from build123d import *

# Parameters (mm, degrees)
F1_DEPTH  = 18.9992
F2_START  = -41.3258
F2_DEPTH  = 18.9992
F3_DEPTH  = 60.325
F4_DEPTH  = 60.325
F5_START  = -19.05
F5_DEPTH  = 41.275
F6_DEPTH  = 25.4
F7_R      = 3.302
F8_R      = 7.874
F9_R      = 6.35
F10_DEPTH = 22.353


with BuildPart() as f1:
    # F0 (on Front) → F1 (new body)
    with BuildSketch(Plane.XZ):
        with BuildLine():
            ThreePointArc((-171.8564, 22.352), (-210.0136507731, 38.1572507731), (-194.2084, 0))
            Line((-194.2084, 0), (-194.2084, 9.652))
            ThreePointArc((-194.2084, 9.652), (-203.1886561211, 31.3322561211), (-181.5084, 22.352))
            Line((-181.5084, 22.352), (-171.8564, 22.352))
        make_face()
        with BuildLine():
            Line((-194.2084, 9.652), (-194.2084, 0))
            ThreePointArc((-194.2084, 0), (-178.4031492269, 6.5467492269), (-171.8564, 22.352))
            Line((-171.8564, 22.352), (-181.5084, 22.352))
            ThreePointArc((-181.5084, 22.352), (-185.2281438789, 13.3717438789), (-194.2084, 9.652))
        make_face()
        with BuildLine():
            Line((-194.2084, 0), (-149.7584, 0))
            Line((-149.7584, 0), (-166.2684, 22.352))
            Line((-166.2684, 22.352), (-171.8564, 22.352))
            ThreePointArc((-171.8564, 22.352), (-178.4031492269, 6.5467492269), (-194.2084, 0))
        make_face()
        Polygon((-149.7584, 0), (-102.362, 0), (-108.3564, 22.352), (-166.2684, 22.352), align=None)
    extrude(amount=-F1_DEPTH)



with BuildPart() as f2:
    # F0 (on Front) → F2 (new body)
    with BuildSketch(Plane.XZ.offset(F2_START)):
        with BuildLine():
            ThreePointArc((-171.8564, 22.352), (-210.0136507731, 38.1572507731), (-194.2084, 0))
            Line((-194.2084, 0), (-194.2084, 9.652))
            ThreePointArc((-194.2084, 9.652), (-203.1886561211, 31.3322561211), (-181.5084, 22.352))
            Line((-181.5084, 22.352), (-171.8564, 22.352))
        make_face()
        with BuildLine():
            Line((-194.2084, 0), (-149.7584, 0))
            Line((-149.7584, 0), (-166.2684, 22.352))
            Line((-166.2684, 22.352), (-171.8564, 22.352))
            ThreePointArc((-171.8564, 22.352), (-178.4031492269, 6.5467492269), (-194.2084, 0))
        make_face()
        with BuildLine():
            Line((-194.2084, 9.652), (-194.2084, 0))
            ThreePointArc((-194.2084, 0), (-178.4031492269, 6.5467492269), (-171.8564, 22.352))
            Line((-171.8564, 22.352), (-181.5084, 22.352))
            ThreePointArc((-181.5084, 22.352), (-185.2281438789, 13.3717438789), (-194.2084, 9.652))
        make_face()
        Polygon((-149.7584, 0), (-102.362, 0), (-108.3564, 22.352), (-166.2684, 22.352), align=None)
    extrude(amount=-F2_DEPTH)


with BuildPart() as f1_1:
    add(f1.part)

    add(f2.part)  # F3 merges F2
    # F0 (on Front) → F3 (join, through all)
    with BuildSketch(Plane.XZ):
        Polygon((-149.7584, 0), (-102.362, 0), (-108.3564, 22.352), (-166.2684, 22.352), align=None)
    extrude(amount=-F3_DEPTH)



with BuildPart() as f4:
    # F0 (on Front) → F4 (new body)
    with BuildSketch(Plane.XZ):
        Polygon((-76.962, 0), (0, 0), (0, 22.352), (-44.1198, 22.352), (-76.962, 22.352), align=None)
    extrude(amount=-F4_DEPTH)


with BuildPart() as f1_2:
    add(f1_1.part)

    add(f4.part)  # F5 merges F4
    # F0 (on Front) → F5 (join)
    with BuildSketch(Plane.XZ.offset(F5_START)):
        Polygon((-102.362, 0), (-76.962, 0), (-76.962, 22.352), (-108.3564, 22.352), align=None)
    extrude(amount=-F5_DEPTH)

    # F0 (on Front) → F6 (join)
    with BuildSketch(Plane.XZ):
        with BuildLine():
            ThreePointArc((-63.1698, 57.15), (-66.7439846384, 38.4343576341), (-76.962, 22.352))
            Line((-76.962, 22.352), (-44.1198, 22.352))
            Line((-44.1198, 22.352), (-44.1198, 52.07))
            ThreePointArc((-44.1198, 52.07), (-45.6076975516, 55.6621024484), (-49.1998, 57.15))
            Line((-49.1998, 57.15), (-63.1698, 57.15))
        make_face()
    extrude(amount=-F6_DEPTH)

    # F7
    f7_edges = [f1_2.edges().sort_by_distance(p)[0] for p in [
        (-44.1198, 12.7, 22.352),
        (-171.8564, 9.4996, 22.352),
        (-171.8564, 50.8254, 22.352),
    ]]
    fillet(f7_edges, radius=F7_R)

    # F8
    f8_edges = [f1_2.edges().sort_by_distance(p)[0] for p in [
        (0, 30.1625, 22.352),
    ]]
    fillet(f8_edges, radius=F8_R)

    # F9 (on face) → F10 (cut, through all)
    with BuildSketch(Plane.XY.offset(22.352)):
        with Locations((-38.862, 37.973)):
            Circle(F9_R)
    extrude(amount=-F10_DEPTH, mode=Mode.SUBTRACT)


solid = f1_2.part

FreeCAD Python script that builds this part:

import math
import FreeCAD as App
import Part
import Sketcher

V = App.Vector
Q = App.Units.Quantity


def edges_at(feature, points):
    """Names of the edges that pass closest to the given points."""
    edges = feature.Shape.Edges
    near = lambda p: min(range(len(edges)), key=lambda i: edges[i].distToShape(Part.Vertex(*p))[0])
    return sorted({f"Edge{near(p) + 1}" for p in points})


def add_polygon(sketch, points):
    """Adds a closed chain of lines whose ends are joined by coincident constraints."""
    first, n = sketch.GeometryCount, len(points)
    for a, b in zip(points, points[1:] + points[:1]):
        sketch.addGeometry(Part.LineSegment(App.Vector(*a, 0), App.Vector(*b, 0)), False)
    for i in range(n):
        sketch.addConstraint(Sketcher.Constraint("Coincident", first + i, 2, first + (i + 1) % n, 1))

doc = App.newDocument("Part")
params = doc.addObject("Spreadsheet::Sheet", "Params")
for row, (alias, value) in enumerate([
    ("sketch1_radius", "0.5 in"),
    ("sketch1_radius2", "0.88 in"),
    ("sketch1_width", "2.5 in"),
    ("sketch1_width2", "3.616 in"),
    ("pad1_length", "0.748 in"),
    ("sketch2_radius", "0.5 in"),
    ("sketch2_radius2", "0.88 in"),
    ("sketch2_width", "2.5 in"),
    ("sketch2_width2", "3.616 in"),
    ("pad2_length", "0.748 in"),
    ("sketch3_width", "2.28 in"),
    ("sketch3_width2", "1.866 in"),
    ("sketch4_width", "3.03 in"),
    ("sketch4_height", "0.88 in"),
    ("pad4_length", "2.375 in"),
    ("sketch5_width", "1 in"),
    ("sketch5_height", "0.88 in"),
    ("sketch5_width2", "1.236 in"),
    ("pad5_length", "1.625 in"),
    ("sketch6_radius", "2 in"),
    ("sketch6_radius2", "0.2 in"),
    ("sketch6_width", "0.55 in"),
    ("sketch6_height", "1.17 in"),
    ("sketch6_width2", "1.293 in"),
    ("pad6_length", "1 in"),
    ("fillet_radius", "0.13 in"),
    ("fillet2_radius", "0.31 in"),
    ("sketch7_diameter", "0.5 in"),
], start=1):
    params.set(f"A{row}", alias)
    params.set(f"B{row}", "=" + value)
    params.setAlias(f"B{row}", alias)

body = doc.addObject("PartDesign::Body", "Body")

# Sketch on XZ plane
sketch1 = doc.addObject("Sketcher::SketchObject", "Sketch")
body.addObject(sketch1)
sketch1.AttachmentSupport = (doc.XZ_Plane, [""])
sketch1.MapMode = "FlatFace"
sketch1.addGeometry([
    Part.ArcOfCircle(Part.Circle(V(-194, 22, 0), V(0, 0, 1), 22), math.radians(0), math.radians(270)),  # 0
    Part.LineSegment(V(-194, 0, 0), V(-102, 0, 0)),  # 1
    Part.LineSegment(V(-102, 0, 0), V(-108, 22, 0)),  # 2
    Part.LineSegment(V(-108, 22, 0), V(-172, 22, 0)),  # 3
    Part.ArcOfCircle(Part.Circle(V(-194, 22, 0), V(0, 0, 1), 13), math.radians(0), math.radians(270)),  # 4
    Part.ArcOfCircle(Part.Circle(V(-194, 22, 0), V(0, 0, 1), 13), math.radians(-90), math.radians(0)),  # 5
], False)
sketch1.addConstraint([
    Sketcher.Constraint("Tangent", 0, 2, 1, 1),
    Sketcher.Constraint("Coincident", 1, 2, 2, 1),
    Sketcher.Constraint("Coincident", 2, 2, 3, 1),
    Sketcher.Constraint("Coincident", 3, 2, 0, 1),
    Sketcher.Constraint("Tangent", 4, 1, 5, 2),
    Sketcher.Constraint("Coincident", 5, 1, 4, 2),
    Sketcher.Constraint("Horizontal", 1),
    Sketcher.Constraint("Horizontal", 3),
    Sketcher.Constraint("Coincident", 4, 3, 0, 3),
    Sketcher.Constraint("PointOnObject", 0, 2, -1),
    Sketcher.Constraint("Horizontal", 5, 3, 2, 2),
    Sketcher.Constraint("Horizontal", 3, 2, 4, 1),
    Sketcher.Constraint("Vertical", 0, 2, 5, 1),
    Sketcher.Constraint("Radius", 4, Q("0.5 in")),
    Sketcher.Constraint("Radius", 0, Q("0.88 in")),
    Sketcher.Constraint("DistanceX", 3, 2, 3, 1, Q("2.5 in")),
    Sketcher.Constraint("DistanceX", 1, 1, 1, 2, Q("3.616 in")),
    Sketcher.Constraint("DistanceX", 1, 2, -1, 1, Q("4.03 in")),
])
sketch1.setExpression("Constraints[13]", "Params.sketch1_radius")
sketch1.setExpression("Constraints[14]", "Params.sketch1_radius2")
sketch1.setExpression("Constraints[15]", "Params.sketch1_width")
sketch1.setExpression("Constraints[16]", "Params.sketch1_width2")
pad1 = doc.addObject("PartDesign::Pad", "Pad")
body.addObject(pad1)
pad1.Profile = sketch1
pad1.setExpression("Length", "Params.pad1_length")
pad1.Reversed = True
body2 = doc.addObject("PartDesign::Body", "Body001")

# Sketch on XZ plane
sketch2 = doc.addObject("Sketcher::SketchObject", "Sketch001")
body2.addObject(sketch2)
sketch2.AttachmentSupport = (doc.getObject("XZ_Plane001"), [""])
sketch2.MapMode = "FlatFace"
sketch2.AttachmentOffset = App.Placement(V(0, 0, -1.627 * 25.4), App.Rotation())
sketch2.addGeometry([
    Part.ArcOfCircle(Part.Circle(V(-194, 22, 0), V(0, 0, 1), 22), math.radians(0), math.radians(270)),  # 0
    Part.LineSegment(V(-194, 0, 0), V(-102, 0, 0)),  # 1
    Part.LineSegment(V(-102, 0, 0), V(-108, 22, 0)),  # 2
    Part.LineSegment(V(-108, 22, 0), V(-172, 22, 0)),  # 3
    Part.ArcOfCircle(Part.Circle(V(-194, 22, 0), V(0, 0, 1), 13), math.radians(0), math.radians(270)),  # 4
    Part.ArcOfCircle(Part.Circle(V(-194, 22, 0), V(0, 0, 1), 13), math.radians(-90), math.radians(0)),  # 5
], False)
sketch2.addConstraint([
    Sketcher.Constraint("Tangent", 0, 2, 1, 1),
    Sketcher.Constraint("Coincident", 1, 2, 2, 1),
    Sketcher.Constraint("Coincident", 2, 2, 3, 1),
    Sketcher.Constraint("Coincident", 3, 2, 0, 1),
    Sketcher.Constraint("Tangent", 4, 1, 5, 2),
    Sketcher.Constraint("Coincident", 5, 1, 4, 2),
    Sketcher.Constraint("Horizontal", 1),
    Sketcher.Constraint("Horizontal", 3),
    Sketcher.Constraint("Coincident", 4, 3, 0, 3),
    Sketcher.Constraint("PointOnObject", 0, 2, -1),
    Sketcher.Constraint("Horizontal", 5, 3, 2, 2),
    Sketcher.Constraint("Horizontal", 3, 2, 4, 1),
    Sketcher.Constraint("Vertical", 0, 2, 5, 1),
    Sketcher.Constraint("Radius", 4, Q("0.5 in")),
    Sketcher.Constraint("Radius", 0, Q("0.88 in")),
    Sketcher.Constraint("DistanceX", 3, 2, 3, 1, Q("2.5 in")),
    Sketcher.Constraint("DistanceX", 1, 1, 1, 2, Q("3.616 in")),
    Sketcher.Constraint("DistanceX", 1, 2, -1, 1, Q("4.03 in")),
])
sketch2.setExpression("Constraints[13]", "Params.sketch2_radius")
sketch2.setExpression("Constraints[14]", "Params.sketch2_radius2")
sketch2.setExpression("Constraints[15]", "Params.sketch2_width")
sketch2.setExpression("Constraints[16]", "Params.sketch2_width2")
pad2 = doc.addObject("PartDesign::Pad", "Pad001")
body2.addObject(pad2)
pad2.Profile = sketch2
pad2.setExpression("Length", "Params.pad2_length")
pad2.Reversed = True
body.AllowCompound = True
doc.recompute()

boolean = doc.addObject("PartDesign::Boolean", "Boolean")
body.addObject(boolean)
boolean.Type = "Fuse"
boolean.addObjects([body2])

# Sketch on XZ plane
sketch3 = doc.addObject("Sketcher::SketchObject", "Sketch002")
body.addObject(sketch3)
sketch3.AttachmentSupport = (doc.XZ_Plane, [""])
sketch3.MapMode = "FlatFace"
add_polygon(sketch3, [(-150, 0), (-102, 0), (-108, 22), (-166, 22)])  # lines 0-3
sketch3.addConstraint([
    Sketcher.Constraint("Horizontal", 0),
    Sketcher.Constraint("Horizontal", 2),
    Sketcher.Constraint("PointOnObject", 0, 2, -1),
    Sketcher.Constraint("DistanceX", 2, 2, 2, 1, Q("2.28 in")),
    Sketcher.Constraint("DistanceX", 0, 1, 0, 2, Q("1.866 in")),
    Sketcher.Constraint("DistanceX", 0, 2, -1, 1, Q("4.03 in")),
    Sketcher.Constraint("DistanceY", -1, 1, 1, 2, Q("0.88 in")),
    Sketcher.Constraint("DistanceX", 2, 2, 3, 2, Q("0.65 in")),
])
sketch3.setExpression("Constraints[7]", "Params.sketch3_width")
sketch3.setExpression("Constraints[8]", "Params.sketch3_width2")
pad3 = doc.addObject("PartDesign::Pad", "Pad002")
body.addObject(pad3)
pad3.Profile = sketch3
pad3.Type = "UpToLast"
pad3.Reversed = True
body3 = doc.addObject("PartDesign::Body", "Body002")

# Sketch on XZ plane
sketch4 = doc.addObject("Sketcher::SketchObject", "Sketch003")
body3.addObject(sketch4)
sketch4.AttachmentSupport = (doc.getObject("XZ_Plane002"), [""])
sketch4.MapMode = "FlatFace"
add_polygon(sketch4, [(-77, 0), (0, 0), (0, 22), (-77, 22)])  # lines 0-3
sketch4.addConstraint([
    Sketcher.Constraint("Horizontal", 0),
    Sketcher.Constraint("Vertical", 1),
    Sketcher.Constraint("Horizontal", 2),
    Sketcher.Constraint("Vertical", 3),
    Sketcher.Constraint("Coincident", 0, 2, -1, 1),
    Sketcher.Constraint("DistanceX", 0, 1, 0, 2, Q("3.03 in")),
    Sketcher.Constraint("DistanceY", 1, 1, 1, 2, Q("0.88 in")),
])
sketch4.setExpression("Constraints[9]", "Params.sketch4_width")
sketch4.setExpression("Constraints[10]", "Params.sketch4_height")
pad4 = doc.addObject("PartDesign::Pad", "Pad003")
body3.addObject(pad4)
pad4.Profile = sketch4
pad4.setExpression("Length", "Params.pad4_length")
pad4.Reversed = True
body.AllowCompound = True
doc.recompute()

boolean2 = doc.addObject("PartDesign::Boolean", "Boolean001")
body.addObject(boolean2)
boolean2.Type = "Fuse"
boolean2.addObjects([body3])

# Sketch on XZ plane
sketch5 = doc.addObject("Sketcher::SketchObject", "Sketch004")
body.addObject(sketch5)
sketch5.AttachmentSupport = (doc.XZ_Plane, [""])
sketch5.MapMode = "FlatFace"
sketch5.AttachmentOffset = App.Placement(V(0, 0, -0.75 * 25.4), App.Rotation())
add_polygon(sketch5, [(-102, 0), (-77, 0), (-77, 22), (-108, 22)])  # lines 0-3
sketch5.addConstraint([
    Sketcher.Constraint("Horizontal", 0),
    Sketcher.Constraint("Vertical", 1),
    Sketcher.Constraint("Horizontal", 2),
    Sketcher.Constraint("PointOnObject", 0, 2, -1),
    Sketcher.Constraint("DistanceX", 0, 1, 0, 2, Q("1 in")),
    Sketcher.Constraint("DistanceY", 1, 1, 1, 2, Q("0.88 in")),
    Sketcher.Constraint("DistanceX", 2, 2, 2, 1, Q("1.236 in")),
    Sketcher.Constraint("DistanceX", 0, 2, -1, 1, Q("3.03 in")),
])
sketch5.setExpression("Constraints[8]", "Params.sketch5_width")
sketch5.setExpression("Constraints[9]", "Params.sketch5_height")
sketch5.setExpression("Constraints[10]", "Params.sketch5_width2")
pad5 = doc.addObject("PartDesign::Pad", "Pad004")
body.addObject(pad5)
pad5.Profile = sketch5
pad5.setExpression("Length", "Params.pad5_length")
pad5.Reversed = True

# Sketch on XZ plane
sketch6 = doc.addObject("Sketcher::SketchObject", "Sketch005")
body.addObject(sketch6)
sketch6.AttachmentSupport = (doc.XZ_Plane, [""])
sketch6.MapMode = "FlatFace"
sketch6.addGeometry([
    Part.ArcOfCircle(Part.Circle(V(-114, 57, 0), V(0, 0, 1), 51), math.radians(-43), math.radians(0)),  # 0
    Part.LineSegment(V(-77, 22, 0), V(-44, 22, 0)),  # 1
    Part.LineSegment(V(-44, 22, 0), V(-44, 52, 0)),  # 2
    Part.ArcOfCircle(Part.Circle(V(-49, 52, 0), V(0, 0, 1), 5), math.radians(0), math.radians(90)),  # 3
    Part.LineSegment(V(-49, 57, 0), V(-63, 57, 0)),  # 4
], False)
sketch6.addConstraint([
    Sketcher.Constraint("Coincident", 0, 1, 1, 1),
    Sketcher.Constraint("Coincident", 1, 2, 2, 1),
    Sketcher.Constraint("Tangent", 2, 2, 3, 1),
    Sketcher.Constraint("Tangent", 3, 2, 4, 1),
    Sketcher.Constraint("Coincident", 4, 2, 0, 2),
    Sketcher.Constraint("Horizontal", 1),
    Sketcher.Constraint("Vertical", 2),
    Sketcher.Constraint("Horizontal", 4),
    Sketcher.Constraint("Radius", 0, Q("2 in")),
    Sketcher.Constraint("Radius", 3, Q("0.2 in")),
    Sketcher.Constraint("DistanceX", 4, 2, 4, 1, Q("0.55 in")),
    Sketcher.Constraint("DistanceY", 2, 1, 2, 2, Q("1.17 in")),
    Sketcher.Constraint("DistanceX", 1, 1, 1, 2, Q("1.293 in")),
    Sketcher.Constraint("DistanceY", -1, 1, 3, 3, Q("2.05 in")),
    Sketcher.Constraint("DistanceX", 0, 1, -1, 1, Q("3.03 in")),
])
sketch6.setExpression("Constraints[8]", "Params.sketch6_radius")
sketch6.setExpression("Constraints[9]", "Params.sketch6_radius2")
sketch6.setExpression("Constraints[10]", "Params.sketch6_width")
sketch6.setExpression("Constraints[11]", "Params.sketch6_height")
sketch6.setExpression("Constraints[12]", "Params.sketch6_width2")
pad6 = doc.addObject("PartDesign::Pad", "Pad005")
body.addObject(pad6)
pad6.Profile = sketch6
pad6.setExpression("Length", "Params.pad6_length")
pad6.Reversed = True
doc.recompute()

fillet = doc.addObject("PartDesign::Fillet", "Fillet")
body.addObject(fillet)
fillet.Base = (pad6, edges_at(pad6, [(-44.12, 12.7, 22.352), (-171.856, 9.5, 22.352), (-171.856, 50.825, 22.352)]))
fillet.setExpression("Radius", "Params.fillet_radius")
doc.recompute()

fillet2 = doc.addObject("PartDesign::Fillet", "Fillet001")
body.addObject(fillet2)
fillet2.Base = (fillet, edges_at(fillet, [(0, 30.163, 22.352)]))
fillet2.setExpression("Radius", "Params.fillet2_radius")

# Sketch on XY plane
sketch7 = doc.addObject("Sketcher::SketchObject", "Sketch006")
body.addObject(sketch7)
sketch7.AttachmentSupport = (doc.XY_Plane, [""])
sketch7.MapMode = "FlatFace"
sketch7.AttachmentOffset = App.Placement(V(0, 0, 0.88 * 25.4), App.Rotation())
sketch7.addGeometry(Part.Circle(V(-39, 38, 0), V(0, 0, 1), 6), False)
sketch7.addConstraint([
    Sketcher.Constraint("Diameter", 0, Q("0.5 in")),
    Sketcher.Constraint("DistanceX", 0, 3, -1, 1, Q("1.53 in")),
    Sketcher.Constraint("DistanceY", -1, 1, 0, 3, Q("1.495 in")),
])
sketch7.setExpression("Constraints[0]", "Params.sketch7_diameter")
pocket1 = doc.addObject("PartDesign::Pocket", "Pocket")
body.addObject(pocket1)
pocket1.Profile = sketch7
pocket1.Type = "ThroughAll"

doc.recompute()
